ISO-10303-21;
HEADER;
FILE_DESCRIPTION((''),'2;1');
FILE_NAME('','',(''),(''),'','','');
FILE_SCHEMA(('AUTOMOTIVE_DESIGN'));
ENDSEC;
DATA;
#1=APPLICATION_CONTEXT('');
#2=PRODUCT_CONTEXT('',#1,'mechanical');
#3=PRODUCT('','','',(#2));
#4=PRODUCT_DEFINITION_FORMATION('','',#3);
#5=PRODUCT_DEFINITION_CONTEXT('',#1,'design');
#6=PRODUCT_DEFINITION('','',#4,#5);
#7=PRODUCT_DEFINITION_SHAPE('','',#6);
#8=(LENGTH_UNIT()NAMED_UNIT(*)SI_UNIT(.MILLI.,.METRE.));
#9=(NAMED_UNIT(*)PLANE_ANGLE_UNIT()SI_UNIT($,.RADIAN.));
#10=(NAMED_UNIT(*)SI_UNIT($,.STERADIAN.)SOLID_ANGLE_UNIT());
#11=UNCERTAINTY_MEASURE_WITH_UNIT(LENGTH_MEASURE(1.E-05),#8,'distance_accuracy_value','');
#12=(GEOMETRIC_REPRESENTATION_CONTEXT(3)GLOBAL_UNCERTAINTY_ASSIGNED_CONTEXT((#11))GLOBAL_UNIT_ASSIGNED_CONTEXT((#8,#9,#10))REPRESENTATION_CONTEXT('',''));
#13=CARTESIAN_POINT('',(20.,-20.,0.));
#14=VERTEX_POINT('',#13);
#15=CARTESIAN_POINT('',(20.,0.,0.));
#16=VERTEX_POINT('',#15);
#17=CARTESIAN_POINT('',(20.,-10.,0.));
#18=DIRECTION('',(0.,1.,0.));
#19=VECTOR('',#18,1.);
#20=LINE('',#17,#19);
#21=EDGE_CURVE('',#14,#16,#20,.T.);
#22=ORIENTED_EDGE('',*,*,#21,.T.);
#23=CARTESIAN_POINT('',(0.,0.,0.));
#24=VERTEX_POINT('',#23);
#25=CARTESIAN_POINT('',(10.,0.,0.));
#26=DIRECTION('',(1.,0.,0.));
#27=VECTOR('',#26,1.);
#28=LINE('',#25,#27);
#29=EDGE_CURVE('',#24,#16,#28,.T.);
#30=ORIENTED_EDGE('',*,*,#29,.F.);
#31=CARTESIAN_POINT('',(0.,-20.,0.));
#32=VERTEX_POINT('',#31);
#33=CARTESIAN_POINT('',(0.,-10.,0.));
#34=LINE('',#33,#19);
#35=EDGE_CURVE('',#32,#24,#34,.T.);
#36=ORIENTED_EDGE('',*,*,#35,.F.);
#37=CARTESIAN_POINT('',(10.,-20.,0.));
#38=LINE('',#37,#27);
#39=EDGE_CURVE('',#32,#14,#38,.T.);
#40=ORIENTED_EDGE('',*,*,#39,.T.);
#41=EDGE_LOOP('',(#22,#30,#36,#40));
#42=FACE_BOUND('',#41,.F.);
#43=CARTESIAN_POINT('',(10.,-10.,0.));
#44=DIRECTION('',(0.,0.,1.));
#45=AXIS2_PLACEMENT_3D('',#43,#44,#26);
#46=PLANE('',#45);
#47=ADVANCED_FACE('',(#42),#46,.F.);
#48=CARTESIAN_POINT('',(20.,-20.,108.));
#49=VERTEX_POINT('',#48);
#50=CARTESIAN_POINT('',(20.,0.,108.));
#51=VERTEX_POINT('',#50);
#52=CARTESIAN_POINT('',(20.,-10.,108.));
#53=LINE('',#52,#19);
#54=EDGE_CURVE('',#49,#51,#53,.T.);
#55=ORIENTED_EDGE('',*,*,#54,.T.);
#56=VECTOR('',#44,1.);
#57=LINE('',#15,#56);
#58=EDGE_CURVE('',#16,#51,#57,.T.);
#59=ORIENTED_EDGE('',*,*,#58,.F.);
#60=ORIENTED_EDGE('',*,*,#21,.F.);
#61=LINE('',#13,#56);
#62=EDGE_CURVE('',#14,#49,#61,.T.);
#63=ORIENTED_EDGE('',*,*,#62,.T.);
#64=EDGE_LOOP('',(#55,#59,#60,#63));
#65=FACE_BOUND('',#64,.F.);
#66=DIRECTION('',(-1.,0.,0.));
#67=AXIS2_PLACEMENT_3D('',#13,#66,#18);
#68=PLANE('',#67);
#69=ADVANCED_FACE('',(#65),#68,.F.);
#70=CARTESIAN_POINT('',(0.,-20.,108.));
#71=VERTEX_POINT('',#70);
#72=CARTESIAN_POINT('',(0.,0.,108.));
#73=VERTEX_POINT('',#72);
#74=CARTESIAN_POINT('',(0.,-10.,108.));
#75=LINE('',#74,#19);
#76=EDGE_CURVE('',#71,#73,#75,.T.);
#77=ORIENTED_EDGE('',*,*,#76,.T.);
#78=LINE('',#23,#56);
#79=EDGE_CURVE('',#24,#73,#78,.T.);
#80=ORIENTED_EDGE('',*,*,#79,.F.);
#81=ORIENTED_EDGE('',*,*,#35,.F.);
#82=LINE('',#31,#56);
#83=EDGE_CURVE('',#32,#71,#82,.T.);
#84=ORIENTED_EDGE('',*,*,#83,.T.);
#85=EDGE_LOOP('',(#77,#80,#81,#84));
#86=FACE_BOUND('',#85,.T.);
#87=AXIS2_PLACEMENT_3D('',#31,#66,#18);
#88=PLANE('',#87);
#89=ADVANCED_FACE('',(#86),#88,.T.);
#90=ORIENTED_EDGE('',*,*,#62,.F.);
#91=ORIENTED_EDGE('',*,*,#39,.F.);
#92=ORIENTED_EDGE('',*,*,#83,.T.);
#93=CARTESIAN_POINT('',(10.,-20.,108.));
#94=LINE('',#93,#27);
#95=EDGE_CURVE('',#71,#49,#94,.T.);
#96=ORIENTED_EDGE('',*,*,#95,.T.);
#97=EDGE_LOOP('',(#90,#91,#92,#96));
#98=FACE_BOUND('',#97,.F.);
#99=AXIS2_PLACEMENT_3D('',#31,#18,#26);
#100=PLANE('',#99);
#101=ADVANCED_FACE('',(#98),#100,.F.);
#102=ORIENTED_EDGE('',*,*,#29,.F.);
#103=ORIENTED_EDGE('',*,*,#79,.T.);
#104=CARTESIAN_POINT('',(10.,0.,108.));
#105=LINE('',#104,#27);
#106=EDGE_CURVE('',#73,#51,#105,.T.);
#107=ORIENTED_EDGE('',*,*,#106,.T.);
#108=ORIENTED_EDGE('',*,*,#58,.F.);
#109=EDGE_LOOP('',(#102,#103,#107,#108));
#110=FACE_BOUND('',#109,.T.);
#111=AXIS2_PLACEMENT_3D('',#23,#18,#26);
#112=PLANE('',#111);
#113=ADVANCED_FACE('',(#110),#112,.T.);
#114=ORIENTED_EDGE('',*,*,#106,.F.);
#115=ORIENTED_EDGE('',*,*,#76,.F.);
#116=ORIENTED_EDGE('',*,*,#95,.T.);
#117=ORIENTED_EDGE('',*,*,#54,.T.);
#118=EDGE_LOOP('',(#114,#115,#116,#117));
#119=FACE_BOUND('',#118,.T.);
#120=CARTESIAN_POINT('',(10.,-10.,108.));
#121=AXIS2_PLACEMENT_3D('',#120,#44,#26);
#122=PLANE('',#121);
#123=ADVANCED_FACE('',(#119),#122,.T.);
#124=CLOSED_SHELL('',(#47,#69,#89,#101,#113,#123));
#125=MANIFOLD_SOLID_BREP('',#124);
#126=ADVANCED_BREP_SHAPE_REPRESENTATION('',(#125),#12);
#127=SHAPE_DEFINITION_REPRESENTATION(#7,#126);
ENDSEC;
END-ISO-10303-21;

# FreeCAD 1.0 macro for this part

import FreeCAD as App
import Part
import Sketcher

V = App.Vector

doc = App.newDocument("Part")
body = doc.addObject("PartDesign::Body", "Body")

sketch1 = doc.addObject("Sketcher::SketchObject", "Sketch")
body.addObject(sketch1)
sketch1.AttachmentSupport = (doc.XY_Plane, [""])
sketch1.MapMode = "FlatFace"
sketch1.addGeometry([
    Part.LineSegment(V(0, 0, 0), V(0, -20, 0)),
    Part.LineSegment(V(0, -20, 0), V(20, -20, 0)),
    Part.LineSegment(V(20, -20, 0), V(20, 0, 0)),
    Part.LineSegment(V(20, 0, 0), V(0, 0, 0)),
], False)
sketch1.addConstraint([
    Sketcher.Constraint("Coincident", 0, 2, 1, 1),
    Sketcher.Constraint("Coincident", 1, 2, 2, 1),
    Sketcher.Constraint("Coincident", 2, 2, 3, 1),
    Sketcher.Constraint("Coincident", 3, 2, 0, 1),
    Sketcher.Constraint("Vertical", 0),
    Sketcher.Constraint("Horizontal", 1),
    Sketcher.Constraint("Vertical", 2),
    Sketcher.Constraint("Horizontal", 3),
    Sketcher.Constraint("Coincident", 3, 2, -1, 1),
    Sketcher.Constraint("Equal", 3, 0),
    Sketcher.Constraint("DistanceX", 1, 1, 1, 2, 20.0),
])
pad1 = doc.addObject("PartDesign::Pad", "Pad")
body.addObject(pad1)
pad1.Profile = sketch1
pad1.Length = 108

doc.recompute()
